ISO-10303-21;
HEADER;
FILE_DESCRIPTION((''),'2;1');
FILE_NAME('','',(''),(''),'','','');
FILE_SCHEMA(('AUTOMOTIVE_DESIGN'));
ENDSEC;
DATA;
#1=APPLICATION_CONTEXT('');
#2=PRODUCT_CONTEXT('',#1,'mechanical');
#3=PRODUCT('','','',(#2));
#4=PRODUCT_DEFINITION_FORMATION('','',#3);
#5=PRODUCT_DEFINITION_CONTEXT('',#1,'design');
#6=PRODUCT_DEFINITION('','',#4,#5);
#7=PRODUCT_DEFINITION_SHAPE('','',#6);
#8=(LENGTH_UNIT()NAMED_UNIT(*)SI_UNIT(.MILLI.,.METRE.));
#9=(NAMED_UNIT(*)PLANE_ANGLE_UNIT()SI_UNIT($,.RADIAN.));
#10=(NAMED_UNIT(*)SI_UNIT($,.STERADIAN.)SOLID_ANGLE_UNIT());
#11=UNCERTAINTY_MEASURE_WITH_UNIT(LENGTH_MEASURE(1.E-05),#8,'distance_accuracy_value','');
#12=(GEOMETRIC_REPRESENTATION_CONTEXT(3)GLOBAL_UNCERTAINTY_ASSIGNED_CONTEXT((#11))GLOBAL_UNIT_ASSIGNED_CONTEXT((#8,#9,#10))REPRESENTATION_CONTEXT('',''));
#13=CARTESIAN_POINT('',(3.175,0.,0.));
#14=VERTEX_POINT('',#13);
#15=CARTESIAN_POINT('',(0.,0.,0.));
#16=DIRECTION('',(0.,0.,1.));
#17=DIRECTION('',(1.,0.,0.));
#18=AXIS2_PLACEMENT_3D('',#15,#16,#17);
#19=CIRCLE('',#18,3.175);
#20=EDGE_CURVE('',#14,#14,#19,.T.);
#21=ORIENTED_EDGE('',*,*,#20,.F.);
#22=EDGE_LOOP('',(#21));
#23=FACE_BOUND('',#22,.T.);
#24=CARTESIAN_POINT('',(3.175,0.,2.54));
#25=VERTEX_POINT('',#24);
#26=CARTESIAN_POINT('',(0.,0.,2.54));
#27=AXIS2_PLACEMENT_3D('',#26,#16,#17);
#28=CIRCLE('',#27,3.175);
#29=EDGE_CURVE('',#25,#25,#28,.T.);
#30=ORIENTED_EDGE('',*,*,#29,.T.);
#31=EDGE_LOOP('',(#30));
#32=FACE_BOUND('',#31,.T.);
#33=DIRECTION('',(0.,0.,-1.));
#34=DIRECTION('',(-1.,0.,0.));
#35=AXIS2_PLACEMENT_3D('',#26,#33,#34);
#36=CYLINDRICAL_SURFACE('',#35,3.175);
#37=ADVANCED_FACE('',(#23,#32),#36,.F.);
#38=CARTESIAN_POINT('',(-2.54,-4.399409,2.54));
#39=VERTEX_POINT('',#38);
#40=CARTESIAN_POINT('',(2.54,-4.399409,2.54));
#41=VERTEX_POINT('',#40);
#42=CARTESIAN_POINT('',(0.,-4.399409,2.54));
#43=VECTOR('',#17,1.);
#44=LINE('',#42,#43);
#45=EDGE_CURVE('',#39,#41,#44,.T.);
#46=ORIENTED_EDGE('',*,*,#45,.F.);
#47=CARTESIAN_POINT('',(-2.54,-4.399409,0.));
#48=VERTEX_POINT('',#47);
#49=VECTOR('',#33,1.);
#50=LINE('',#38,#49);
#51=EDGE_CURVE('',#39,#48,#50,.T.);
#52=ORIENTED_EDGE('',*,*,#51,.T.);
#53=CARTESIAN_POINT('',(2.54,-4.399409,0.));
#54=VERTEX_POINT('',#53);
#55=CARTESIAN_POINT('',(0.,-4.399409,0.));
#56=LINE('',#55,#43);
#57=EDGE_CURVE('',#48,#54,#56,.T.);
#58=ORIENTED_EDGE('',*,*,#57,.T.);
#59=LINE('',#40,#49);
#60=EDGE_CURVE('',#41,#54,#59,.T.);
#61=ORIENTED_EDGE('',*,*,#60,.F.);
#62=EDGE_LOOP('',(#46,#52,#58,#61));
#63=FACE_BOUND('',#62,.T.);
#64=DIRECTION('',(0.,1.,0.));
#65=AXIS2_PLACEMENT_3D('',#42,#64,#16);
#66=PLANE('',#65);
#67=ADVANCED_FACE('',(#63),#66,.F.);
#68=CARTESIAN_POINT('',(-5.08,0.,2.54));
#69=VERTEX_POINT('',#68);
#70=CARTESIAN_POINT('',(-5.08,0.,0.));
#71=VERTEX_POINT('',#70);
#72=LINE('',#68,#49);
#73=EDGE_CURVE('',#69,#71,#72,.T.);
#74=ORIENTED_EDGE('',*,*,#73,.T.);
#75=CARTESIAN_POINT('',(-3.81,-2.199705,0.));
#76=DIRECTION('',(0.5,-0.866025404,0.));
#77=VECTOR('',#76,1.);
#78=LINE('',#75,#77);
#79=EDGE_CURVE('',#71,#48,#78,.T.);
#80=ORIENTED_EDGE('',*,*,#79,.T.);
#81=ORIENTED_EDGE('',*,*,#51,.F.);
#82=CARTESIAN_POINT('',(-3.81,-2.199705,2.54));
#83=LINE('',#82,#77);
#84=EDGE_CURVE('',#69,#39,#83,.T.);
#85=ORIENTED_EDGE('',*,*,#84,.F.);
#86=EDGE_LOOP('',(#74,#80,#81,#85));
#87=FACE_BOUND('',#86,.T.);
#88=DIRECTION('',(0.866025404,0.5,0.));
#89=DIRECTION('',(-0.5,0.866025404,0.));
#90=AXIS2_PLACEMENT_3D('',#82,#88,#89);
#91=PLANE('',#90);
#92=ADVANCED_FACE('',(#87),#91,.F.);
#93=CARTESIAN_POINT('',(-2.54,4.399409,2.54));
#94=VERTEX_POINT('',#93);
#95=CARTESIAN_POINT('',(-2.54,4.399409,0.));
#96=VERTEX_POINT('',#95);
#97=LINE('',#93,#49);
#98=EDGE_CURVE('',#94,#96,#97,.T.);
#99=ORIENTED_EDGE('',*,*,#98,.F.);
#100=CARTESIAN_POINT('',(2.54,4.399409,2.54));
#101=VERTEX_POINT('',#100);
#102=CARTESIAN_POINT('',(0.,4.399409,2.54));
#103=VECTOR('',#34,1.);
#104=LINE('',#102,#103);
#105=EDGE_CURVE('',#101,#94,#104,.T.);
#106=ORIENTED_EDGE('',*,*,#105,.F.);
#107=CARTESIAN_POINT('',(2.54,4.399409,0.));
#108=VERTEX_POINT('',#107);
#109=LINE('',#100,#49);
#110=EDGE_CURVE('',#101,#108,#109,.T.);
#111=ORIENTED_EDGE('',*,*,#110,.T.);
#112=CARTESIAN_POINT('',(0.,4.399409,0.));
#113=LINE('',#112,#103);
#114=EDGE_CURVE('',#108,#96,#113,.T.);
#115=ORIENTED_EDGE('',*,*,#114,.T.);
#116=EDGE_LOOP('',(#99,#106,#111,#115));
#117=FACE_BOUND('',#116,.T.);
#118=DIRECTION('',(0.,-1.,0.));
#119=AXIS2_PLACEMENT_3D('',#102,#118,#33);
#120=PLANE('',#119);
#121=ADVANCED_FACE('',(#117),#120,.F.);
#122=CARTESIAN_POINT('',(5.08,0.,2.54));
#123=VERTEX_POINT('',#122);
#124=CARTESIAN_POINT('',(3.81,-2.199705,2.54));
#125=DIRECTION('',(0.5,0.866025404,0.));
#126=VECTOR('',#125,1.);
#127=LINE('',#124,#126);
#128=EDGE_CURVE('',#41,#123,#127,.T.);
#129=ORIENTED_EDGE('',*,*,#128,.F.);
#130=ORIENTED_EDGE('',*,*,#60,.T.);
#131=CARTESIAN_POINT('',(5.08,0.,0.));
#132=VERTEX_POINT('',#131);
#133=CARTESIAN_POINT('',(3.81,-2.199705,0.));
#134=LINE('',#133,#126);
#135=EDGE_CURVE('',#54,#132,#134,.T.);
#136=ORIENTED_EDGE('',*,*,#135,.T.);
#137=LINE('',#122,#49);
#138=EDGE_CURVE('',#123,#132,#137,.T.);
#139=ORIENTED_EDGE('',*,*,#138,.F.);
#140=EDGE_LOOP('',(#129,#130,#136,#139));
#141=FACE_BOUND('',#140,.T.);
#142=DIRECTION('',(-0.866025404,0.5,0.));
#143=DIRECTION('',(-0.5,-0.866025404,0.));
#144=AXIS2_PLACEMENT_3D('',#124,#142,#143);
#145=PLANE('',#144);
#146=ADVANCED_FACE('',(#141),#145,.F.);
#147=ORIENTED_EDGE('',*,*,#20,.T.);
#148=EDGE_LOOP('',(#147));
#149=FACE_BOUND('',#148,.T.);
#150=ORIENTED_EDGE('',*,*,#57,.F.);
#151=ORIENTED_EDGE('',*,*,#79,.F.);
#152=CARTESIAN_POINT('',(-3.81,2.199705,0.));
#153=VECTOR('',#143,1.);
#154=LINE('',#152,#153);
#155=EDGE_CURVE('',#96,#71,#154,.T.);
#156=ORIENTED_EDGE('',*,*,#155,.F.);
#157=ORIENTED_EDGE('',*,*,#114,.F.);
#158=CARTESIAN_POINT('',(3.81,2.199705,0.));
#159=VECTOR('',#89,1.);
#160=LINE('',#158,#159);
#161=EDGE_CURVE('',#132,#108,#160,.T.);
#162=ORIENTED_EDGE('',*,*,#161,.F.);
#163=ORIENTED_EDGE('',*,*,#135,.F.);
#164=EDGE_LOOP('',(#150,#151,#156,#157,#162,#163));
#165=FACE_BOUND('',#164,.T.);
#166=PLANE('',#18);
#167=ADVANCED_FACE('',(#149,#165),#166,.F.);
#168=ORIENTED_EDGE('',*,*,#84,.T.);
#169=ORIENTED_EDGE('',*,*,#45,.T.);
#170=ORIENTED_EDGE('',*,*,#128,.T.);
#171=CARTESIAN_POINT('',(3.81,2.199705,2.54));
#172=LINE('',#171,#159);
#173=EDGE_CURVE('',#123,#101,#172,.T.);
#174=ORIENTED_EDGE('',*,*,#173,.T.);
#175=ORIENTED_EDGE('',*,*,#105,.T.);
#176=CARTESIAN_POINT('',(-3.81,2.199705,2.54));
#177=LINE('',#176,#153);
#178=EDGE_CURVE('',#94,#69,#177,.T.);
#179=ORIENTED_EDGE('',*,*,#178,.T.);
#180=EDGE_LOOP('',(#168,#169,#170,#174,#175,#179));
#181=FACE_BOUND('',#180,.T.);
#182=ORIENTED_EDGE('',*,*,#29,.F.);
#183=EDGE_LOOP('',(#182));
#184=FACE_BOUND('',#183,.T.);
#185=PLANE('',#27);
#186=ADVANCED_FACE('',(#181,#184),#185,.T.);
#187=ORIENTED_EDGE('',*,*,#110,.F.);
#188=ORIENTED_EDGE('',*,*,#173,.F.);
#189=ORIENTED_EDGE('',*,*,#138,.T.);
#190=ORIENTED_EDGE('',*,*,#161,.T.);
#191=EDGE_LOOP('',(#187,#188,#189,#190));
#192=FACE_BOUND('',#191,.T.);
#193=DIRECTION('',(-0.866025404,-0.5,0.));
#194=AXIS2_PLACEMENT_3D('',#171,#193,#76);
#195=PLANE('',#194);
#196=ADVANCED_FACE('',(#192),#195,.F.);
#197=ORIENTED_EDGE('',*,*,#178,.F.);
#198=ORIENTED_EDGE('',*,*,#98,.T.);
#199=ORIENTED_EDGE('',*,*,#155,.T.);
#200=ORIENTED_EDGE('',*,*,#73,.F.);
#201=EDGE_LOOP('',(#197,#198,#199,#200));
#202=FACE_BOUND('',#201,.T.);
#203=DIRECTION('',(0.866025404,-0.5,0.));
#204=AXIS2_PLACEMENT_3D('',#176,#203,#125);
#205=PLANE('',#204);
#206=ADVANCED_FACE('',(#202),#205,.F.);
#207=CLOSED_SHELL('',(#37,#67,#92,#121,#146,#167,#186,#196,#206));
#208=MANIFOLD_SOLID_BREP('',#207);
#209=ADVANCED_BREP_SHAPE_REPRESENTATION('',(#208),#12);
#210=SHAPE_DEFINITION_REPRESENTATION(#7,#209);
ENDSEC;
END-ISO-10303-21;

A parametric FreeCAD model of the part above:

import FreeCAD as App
import Part
import Sketcher
Q = App.Units.Quantity

doc = App.newDocument("Part")
body = doc.addObject("PartDesign::Body", "Body")

# Sketch on XY plane
sketch1 = body.newObject("Sketcher::SketchObject", "Sketch")
sketch1.AttachmentSupport = (doc.getObject("XY_Plane"), [""])
sketch1.MapMode = "FlatFace"
sketch1.addGeometry([
    Part.LineSegment(App.Vector(2.5, -4.4, 0), App.Vector(5.1, 0, 0)),  # 0
    Part.LineSegment(App.Vector(5.1, 0, 0), App.Vector(2.5, 4.4, 0)),  # 1
    Part.LineSegment(App.Vector(2.5, 4.4, 0), App.Vector(-2.5, 4.4, 0)),  # 2
    Part.LineSegment(App.Vector(-2.5, 4.4, 0), App.Vector(-5.1, 0, 0)),  # 3
    Part.LineSegment(App.Vector(-5.1, 0, 0), App.Vector(-2.5, -4.4, 0)),  # 4
    Part.LineSegment(App.Vector(-2.5, -4.4, 0), App.Vector(2.5, -4.4, 0)),  # 5
    Part.Circle(App.Vector(0, 0, 0), App.Vector(0, 0, 1), 3.2),  # 6
], False)
sketch1.addConstraint([
    Sketcher.Constraint("Coincident", 0, 2, 1, 1),
    Sketcher.Constraint("Coincident", 1, 2, 2, 1),
    Sketcher.Constraint("Coincident", 2, 2, 3, 1),
    Sketcher.Constraint("Coincident", 3, 2, 4, 1),
    Sketcher.Constraint("Coincident", 4, 2, 5, 1),
    Sketcher.Constraint("Coincident", 5, 2, 0, 1),
    Sketcher.Constraint("Horizontal", 2),
    Sketcher.Constraint("Horizontal", 5),
    Sketcher.Constraint("Coincident", 6, 3, -1, 1),
    Sketcher.Constraint("Symmetric", 0, 2, 3, 2, -1, 1),
    Sketcher.Constraint("Symmetric", 1, 2, 4, 2, -1, 1),
    Sketcher.Constraint("PointOnObject", 0, 2, -1),
    Sketcher.Constraint("Parallel", 0, 3),
    Sketcher.Constraint("Vertical", 2, 2, 4, 2),
    Sketcher.Constraint("Diameter", 6, Q("0.25 in")),
    Sketcher.Constraint("DistanceX", 2, 2, 2, 1, Q("0.2 in")),
    Sketcher.Constraint("Angle", 0, Q("60 deg")),
    Sketcher.Constraint("Distance", 0, Q("0.2 in")),
])
pad1 = body.newObject("PartDesign::Pad", "Pad")
pad1.Profile = sketch1
pad1.Length = Q("0.1 in")

doc.recompute()
